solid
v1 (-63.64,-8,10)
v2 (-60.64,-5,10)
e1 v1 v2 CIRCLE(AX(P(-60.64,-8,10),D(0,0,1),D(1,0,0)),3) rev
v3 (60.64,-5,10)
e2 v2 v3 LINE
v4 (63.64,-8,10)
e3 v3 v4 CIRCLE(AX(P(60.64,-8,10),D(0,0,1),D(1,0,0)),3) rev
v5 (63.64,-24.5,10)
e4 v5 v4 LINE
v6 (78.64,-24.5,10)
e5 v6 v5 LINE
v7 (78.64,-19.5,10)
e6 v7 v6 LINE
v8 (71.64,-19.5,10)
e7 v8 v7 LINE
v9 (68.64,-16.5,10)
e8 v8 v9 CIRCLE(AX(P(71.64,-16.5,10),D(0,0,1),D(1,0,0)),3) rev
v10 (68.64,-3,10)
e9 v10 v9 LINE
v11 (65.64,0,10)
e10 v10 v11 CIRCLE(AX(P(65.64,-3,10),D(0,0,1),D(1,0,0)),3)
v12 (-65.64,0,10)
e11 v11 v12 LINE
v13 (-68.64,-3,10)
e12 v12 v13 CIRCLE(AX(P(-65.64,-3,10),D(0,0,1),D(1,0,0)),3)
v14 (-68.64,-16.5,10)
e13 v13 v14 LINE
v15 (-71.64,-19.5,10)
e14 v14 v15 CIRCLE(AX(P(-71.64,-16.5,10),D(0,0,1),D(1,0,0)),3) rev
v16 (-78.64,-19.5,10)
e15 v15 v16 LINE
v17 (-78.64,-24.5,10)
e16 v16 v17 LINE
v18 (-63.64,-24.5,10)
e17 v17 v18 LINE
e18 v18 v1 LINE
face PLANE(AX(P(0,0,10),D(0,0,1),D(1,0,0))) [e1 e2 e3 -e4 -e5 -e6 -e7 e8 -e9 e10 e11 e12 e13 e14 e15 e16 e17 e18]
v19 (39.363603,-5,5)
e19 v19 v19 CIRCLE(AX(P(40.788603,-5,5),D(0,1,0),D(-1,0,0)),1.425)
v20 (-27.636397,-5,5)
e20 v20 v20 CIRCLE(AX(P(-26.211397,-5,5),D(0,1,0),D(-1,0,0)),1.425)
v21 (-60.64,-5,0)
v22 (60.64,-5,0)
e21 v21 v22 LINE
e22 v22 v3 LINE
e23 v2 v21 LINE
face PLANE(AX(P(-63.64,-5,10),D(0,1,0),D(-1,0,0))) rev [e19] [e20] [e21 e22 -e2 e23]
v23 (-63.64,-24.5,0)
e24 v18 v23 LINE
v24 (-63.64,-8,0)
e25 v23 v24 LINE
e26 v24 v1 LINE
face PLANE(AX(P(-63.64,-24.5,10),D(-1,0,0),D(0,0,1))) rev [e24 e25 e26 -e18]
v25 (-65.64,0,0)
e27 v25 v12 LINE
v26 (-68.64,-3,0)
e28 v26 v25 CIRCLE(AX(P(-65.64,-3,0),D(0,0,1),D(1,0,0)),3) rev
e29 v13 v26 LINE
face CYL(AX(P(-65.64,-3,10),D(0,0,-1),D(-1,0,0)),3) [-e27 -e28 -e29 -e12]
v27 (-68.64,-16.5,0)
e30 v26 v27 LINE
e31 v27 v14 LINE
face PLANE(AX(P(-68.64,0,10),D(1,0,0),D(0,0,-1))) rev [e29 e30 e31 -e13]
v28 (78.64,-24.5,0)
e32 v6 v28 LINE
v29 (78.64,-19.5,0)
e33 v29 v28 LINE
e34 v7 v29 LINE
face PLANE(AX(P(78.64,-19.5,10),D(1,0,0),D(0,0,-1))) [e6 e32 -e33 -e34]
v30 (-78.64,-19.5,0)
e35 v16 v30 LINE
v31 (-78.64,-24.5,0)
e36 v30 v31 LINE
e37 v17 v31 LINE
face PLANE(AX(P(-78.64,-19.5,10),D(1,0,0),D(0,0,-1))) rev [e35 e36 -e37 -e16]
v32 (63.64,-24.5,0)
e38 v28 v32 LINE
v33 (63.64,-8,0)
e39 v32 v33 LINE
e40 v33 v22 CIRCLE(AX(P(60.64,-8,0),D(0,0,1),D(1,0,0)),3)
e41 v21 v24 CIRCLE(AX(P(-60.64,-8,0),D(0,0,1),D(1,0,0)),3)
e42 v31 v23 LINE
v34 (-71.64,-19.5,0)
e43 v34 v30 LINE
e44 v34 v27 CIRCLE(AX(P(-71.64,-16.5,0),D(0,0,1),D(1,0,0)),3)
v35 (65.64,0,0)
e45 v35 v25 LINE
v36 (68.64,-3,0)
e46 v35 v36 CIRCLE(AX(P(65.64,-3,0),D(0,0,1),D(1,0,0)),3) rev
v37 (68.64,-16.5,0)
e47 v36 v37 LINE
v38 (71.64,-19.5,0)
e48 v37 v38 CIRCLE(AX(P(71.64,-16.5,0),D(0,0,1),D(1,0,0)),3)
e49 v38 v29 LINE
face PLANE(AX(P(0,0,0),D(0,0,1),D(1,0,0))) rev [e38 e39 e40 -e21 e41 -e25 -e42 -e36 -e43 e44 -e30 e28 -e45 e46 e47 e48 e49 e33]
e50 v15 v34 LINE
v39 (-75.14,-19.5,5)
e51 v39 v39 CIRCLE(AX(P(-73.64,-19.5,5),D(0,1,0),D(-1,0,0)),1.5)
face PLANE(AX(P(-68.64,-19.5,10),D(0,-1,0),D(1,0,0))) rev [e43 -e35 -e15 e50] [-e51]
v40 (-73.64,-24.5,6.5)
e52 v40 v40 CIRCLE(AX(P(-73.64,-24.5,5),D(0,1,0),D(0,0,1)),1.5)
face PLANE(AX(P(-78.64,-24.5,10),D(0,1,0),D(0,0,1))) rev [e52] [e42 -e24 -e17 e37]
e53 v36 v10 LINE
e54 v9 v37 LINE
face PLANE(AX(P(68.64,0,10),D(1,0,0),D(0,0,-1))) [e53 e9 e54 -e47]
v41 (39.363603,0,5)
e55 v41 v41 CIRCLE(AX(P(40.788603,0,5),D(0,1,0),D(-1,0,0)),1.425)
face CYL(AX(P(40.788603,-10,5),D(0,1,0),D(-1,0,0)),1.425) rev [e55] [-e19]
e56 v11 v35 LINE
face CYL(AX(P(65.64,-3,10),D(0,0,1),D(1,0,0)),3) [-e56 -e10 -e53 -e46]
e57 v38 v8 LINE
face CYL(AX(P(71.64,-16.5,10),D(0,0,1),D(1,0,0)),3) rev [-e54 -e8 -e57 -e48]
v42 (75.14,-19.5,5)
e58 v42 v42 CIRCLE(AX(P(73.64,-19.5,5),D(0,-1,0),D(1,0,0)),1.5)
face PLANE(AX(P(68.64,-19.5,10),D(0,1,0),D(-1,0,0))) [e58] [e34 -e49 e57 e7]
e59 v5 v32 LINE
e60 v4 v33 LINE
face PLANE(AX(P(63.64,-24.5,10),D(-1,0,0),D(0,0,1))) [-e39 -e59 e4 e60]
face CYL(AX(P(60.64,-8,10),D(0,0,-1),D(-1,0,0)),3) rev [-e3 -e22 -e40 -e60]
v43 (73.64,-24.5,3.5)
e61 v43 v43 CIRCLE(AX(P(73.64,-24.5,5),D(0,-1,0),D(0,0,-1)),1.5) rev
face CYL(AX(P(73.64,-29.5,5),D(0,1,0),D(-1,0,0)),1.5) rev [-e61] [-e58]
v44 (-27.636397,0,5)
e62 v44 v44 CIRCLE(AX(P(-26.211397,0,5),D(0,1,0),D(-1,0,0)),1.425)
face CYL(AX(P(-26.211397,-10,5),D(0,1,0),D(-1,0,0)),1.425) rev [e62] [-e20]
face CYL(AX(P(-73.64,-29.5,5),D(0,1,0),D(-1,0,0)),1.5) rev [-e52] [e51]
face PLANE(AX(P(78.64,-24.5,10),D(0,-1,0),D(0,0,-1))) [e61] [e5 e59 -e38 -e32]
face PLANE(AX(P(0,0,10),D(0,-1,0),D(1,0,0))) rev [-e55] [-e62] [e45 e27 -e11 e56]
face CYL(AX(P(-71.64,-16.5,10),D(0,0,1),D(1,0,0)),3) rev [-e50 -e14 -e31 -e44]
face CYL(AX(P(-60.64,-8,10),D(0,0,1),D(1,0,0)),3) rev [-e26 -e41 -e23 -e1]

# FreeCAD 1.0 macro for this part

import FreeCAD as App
import Part
import Sketcher
Q = App.Units.Quantity


def edges_at(feature, points):
    """Names of the edges that pass closest to the given points."""
    edges = feature.Shape.Edges
    near = lambda p: min(range(len(edges)), key=lambda i: edges[i].distToShape(Part.Vertex(*p))[0])
    return sorted({f"Edge{near(p) + 1}" for p in points})

doc = App.newDocument("Part")
body = doc.addObject("PartDesign::Body", "Body")

# Sketch on XY plane
sketch1 = doc.addObject("Sketcher::SketchObject", "Sketch")
body.addObject(sketch1)
sketch1.AttachmentSupport = (doc.XY_Plane, [""])
sketch1.MapMode = "FlatFace"
sketch1.addGeometry([
    Part.LineSegment(App.Vector(0, 0, 0), App.Vector(-69, 0, 0)),  # 0
    Part.LineSegment(App.Vector(-69, 0, 0), App.Vector(-69, -20, 0)),  # 1
    Part.LineSegment(App.Vector(-69, -20, 0), App.Vector(-79, -20, 0)),  # 2
    Part.LineSegment(App.Vector(-79, -20, 0), App.Vector(-79, -24, 0)),  # 3
    Part.LineSegment(App.Vector(-79, -24, 0), App.Vector(-64, -24, 0)),  # 4
    Part.LineSegment(App.Vector(-64, -24, 0), App.Vector(-64, -5, 0)),  # 5
    Part.LineSegment(App.Vector(-64, -5, 0), App.Vector(0, -5, 0)),  # 6
    Part.LineSegment(App.Vector(0, -5, 0), App.Vector(0, 0, 0)),  # 7
], False)
sketch1.addConstraint([
    Sketcher.Constraint("Coincident", 0, 2, 1, 1),
    Sketcher.Constraint("Coincident", 1, 2, 2, 1),
    Sketcher.Constraint("Coincident", 2, 2, 3, 1),
    Sketcher.Constraint("Coincident", 3, 2, 4, 1),
    Sketcher.Constraint("Coincident", 4, 2, 5, 1),
    Sketcher.Constraint("Coincident", 5, 2, 6, 1),
    Sketcher.Constraint("Coincident", 6, 2, 7, 1),
    Sketcher.Constraint("Coincident", 7, 2, 0, 1),
    Sketcher.Constraint("Horizontal", 0),
    Sketcher.Constraint("Vertical", 1),
    Sketcher.Constraint("Horizontal", 2),
    Sketcher.Constraint("Vertical", 3),
    Sketcher.Constraint("Horizontal", 4),
    Sketcher.Constraint("Vertical", 5),
    Sketcher.Constraint("Horizontal", 6),
    Sketcher.Constraint("Vertical", 7),
    Sketcher.Constraint("Coincident", 7, 2, -1, 1),
    Sketcher.Constraint("Equal", 1, 5),
    Sketcher.Constraint("DistanceX", 2, 2, 2, 1, Q("10 mm")),
    Sketcher.Constraint("DistanceX", 4, 1, 4, 2, Q("15 mm")),
    Sketcher.Constraint("DistanceY", 3, 2, 3, 1, Q("5 mm")),
    Sketcher.Constraint("DistanceY", 1, 2, 1, 1, Q("19.5 mm")),
    Sketcher.Constraint("DistanceX", 0, 2, 0, 1, Q("68.64 mm")),
])
pad1 = doc.addObject("PartDesign::Pad", "Pad")
body.addObject(pad1)
pad1.Profile = sketch1
pad1.Length = 10

# Sketch on XZ plane
sketch2 = doc.addObject("Sketcher::SketchObject", "Sketch001")
body.addObject(sketch2)
sketch2.AttachmentSupport = (doc.XZ_Plane, [""])
sketch2.MapMode = "FlatFace"
sketch2.AttachmentOffset = App.Placement(App.Vector(0, 0, 19.5), App.Rotation())
sketch2.addGeometry(Part.Circle(App.Vector(-73.6, 5, 0), App.Vector(0, 0, 1), 1.5), False)
sketch2.addConstraint([
    Sketcher.Constraint("Diameter", 0, Q("3 mm")),
    Sketcher.Constraint("DistanceY", -1, 1, 0, 3, Q("5 mm")),
    Sketcher.Constraint("DistanceX", 0, 3, -1, 1, Q("73.64 mm")),
])
pocket1 = doc.addObject("PartDesign::Pocket", "Pocket")
body.addObject(pocket1)
pocket1.Profile = sketch2
pocket1.Length = 10
pocket1.Reversed = True
doc.recompute()

fillet = doc.addObject("PartDesign::Fillet", "Fillet")
body.addObject(fillet)
fillet.Base = (pocket1, edges_at(pocket1, [(-63.64, -5, 5), (-68.64, -19.5, 5), (-68.64, 0, 5)]))
fillet.Radius = 3
doc.recompute()

mirrored = doc.addObject("PartDesign::Mirrored", "Mirrored")
body.addObject(mirrored)
mirrored.Originals = [pad1, pocket1]
mirrored.MirrorPlane = (doc.YZ_Plane, [""])
body.Tip = mirrored
doc.recompute()

fillet2 = doc.addObject("PartDesign::Fillet", "Fillet001")
body.addObject(fillet2)
fillet2.Base = (mirrored, edges_at(mirrored, [(63.64, -5, 5), (68.64, -19.5, 5), (68.64, 0, 5)]))
fillet2.Radius = 3

# Sketch on XZ plane
sketch3 = doc.addObject("Sketcher::SketchObject", "Sketch002")
body.addObject(sketch3)
sketch3.AttachmentSupport = (doc.XZ_Plane, [""])
sketch3.MapMode = "FlatFace"
sketch3.addGeometry([
    Part.Circle(App.Vector(40.8, 5, 0), App.Vector(0, 0, 1), 1.4),
    Part.Circle(App.Vector(-26.2, 5, 0), App.Vector(0, 0, 1), 1.4),
], False)
sketch3.addConstraint([
    Sketcher.Constraint("Equal", 0, 1),
    Sketcher.Constraint("Horizontal", 0, 3, 1, 3),
    Sketcher.Constraint("Diameter", 0, Q("2.85 mm")),
    Sketcher.Constraint("DistanceY", -1, 1, 0, 3, Q("5 mm")),
    Sketcher.Constraint("DistanceX", 1, 3, 0, 3, Q("67 mm")),
    Sketcher.Constraint("DistanceX", -1, 1, 0, 3, Q("40.788603 mm")),
])
pocket2 = doc.addObject("PartDesign::Pocket", "Pocket001")
body.addObject(pocket2)
pocket2.Profile = sketch3
pocket2.Length = 10
pocket2.Reversed = True

doc.recompute()
